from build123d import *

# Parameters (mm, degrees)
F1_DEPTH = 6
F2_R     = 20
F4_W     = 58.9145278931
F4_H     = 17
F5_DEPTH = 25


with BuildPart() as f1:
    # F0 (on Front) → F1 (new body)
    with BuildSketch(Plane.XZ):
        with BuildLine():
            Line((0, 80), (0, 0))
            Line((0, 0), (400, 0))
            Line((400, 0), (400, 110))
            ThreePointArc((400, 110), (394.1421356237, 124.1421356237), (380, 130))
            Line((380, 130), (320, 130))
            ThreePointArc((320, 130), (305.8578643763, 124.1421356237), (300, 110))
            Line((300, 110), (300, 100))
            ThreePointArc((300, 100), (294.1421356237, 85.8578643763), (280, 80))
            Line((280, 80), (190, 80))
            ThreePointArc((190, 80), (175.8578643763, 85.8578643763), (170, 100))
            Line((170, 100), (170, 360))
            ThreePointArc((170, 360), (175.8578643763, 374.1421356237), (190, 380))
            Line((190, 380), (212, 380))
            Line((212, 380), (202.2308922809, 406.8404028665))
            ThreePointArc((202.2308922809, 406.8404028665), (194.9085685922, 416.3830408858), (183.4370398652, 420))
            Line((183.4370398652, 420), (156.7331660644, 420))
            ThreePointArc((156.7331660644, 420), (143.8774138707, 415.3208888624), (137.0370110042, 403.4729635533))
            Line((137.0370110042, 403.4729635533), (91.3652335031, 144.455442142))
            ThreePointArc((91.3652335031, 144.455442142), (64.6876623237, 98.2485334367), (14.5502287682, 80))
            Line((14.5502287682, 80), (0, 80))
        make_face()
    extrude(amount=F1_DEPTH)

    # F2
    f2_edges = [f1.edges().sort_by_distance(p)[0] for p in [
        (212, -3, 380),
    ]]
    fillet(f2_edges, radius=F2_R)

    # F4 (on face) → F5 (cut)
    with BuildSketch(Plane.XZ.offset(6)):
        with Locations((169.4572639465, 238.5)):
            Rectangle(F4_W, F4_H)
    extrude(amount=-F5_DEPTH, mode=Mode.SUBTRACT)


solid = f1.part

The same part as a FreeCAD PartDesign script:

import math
import FreeCAD as App
import Part
import Sketcher
from FreeCAD import Vector
Q = App.Units.Quantity


def edges_at(feature, points):
    """Names of the edges that pass closest to the given points."""
    edges = feature.Shape.Edges
    near = lambda p: min(range(len(edges)), key=lambda i: edges[i].distToShape(Part.Vertex(*p))[0])
    return sorted({f"Edge{near(p) + 1}" for p in points})

doc = App.newDocument("Part")
body = doc.addObject("PartDesign::Body", "Body")

# Sketch on XZ plane
sketch1 = body.newObject("Sketcher::SketchObject", "Sketch")
sketch1.AttachmentSupport = (doc.getObject("XZ_Plane"), [""])
sketch1.MapMode = "FlatFace"
sketch1.addGeometry(Part.LineSegment(Vector(0, 80, 0), Vector(0, 0, 0)), False)
sketch1.addGeometry(Part.LineSegment(Vector(0, 0, 0), Vector(400, 0, 0)), False)
sketch1.addGeometry(Part.LineSegment(Vector(400, 0, 0), Vector(400, 110, 0)), False)
sketch1.addGeometry(Part.ArcOfCircle(Part.Circle(Vector(380, 110, 0), Vector(0, 0, 1), 20), math.radians(0), math.radians(90)), False)
sketch1.addGeometry(Part.LineSegment(Vector(380, 130, 0), Vector(320, 130, 0)), False)
sketch1.addGeometry(Part.ArcOfCircle(Part.Circle(Vector(320, 110, 0), Vector(0, 0, 1), 20), math.radians(90), math.radians(180)), False)
sketch1.addGeometry(Part.LineSegment(Vector(300, 110, 0), Vector(300, 100, 0)), False)
sketch1.addGeometry(Part.ArcOfCircle(Part.Circle(Vector(280, 100, 0), Vector(0, 0, 1), 20), math.radians(-90), math.radians(0)), False)
sketch1.addGeometry(Part.LineSegment(Vector(280, 80, 0), Vector(190, 80, 0)), False)
sketch1.addGeometry(Part.ArcOfCircle(Part.Circle(Vector(190, 100, 0), Vector(0, 0, 1), 20), math.radians(180), math.radians(270)), False)
sketch1.addGeometry(Part.LineSegment(Vector(170, 100, 0), Vector(170, 360, 0)), False)
sketch1.addGeometry(Part.ArcOfCircle(Part.Circle(Vector(190, 360, 0), Vector(0, 0, 1), 20), math.radians(90), math.radians(180)), False)
sketch1.addGeometry(Part.LineSegment(Vector(190, 380, 0), Vector(212, 380, 0)), False)
sketch1.addGeometry(Part.LineSegment(Vector(212, 380, 0), Vector(202, 407, 0)), False)
sketch1.addGeometry(Part.ArcOfCircle(Part.Circle(Vector(183, 400, 0), Vector(0, 0, 1), 20), math.radians(20), math.radians(90)), False)
sketch1.addGeometry(Part.LineSegment(Vector(183, 420, 0), Vector(157, 420, 0)), False)
sketch1.addGeometry(Part.ArcOfCircle(Part.Circle(Vector(157, 400, 0), Vector(0, 0, 1), 20), math.radians(90), math.radians(170)), False)
sketch1.addGeometry(Part.LineSegment(Vector(137, 403, 0), Vector(91, 144, 0)), False)
sketch1.addGeometry(Part.ArcOfCircle(Part.Circle(Vector(15, 158, 0), Vector(0, 0, 1), 78), math.radians(-90), math.radians(-10)), False)
sketch1.addGeometry(Part.LineSegment(Vector(15, 80, 0), Vector(0, 80, 0)), False)
sketch1.addConstraint(Sketcher.Constraint("Coincident", 0, 2, 1, 1))
sketch1.addConstraint(Sketcher.Constraint("Coincident", 1, 2, 2, 1))
sketch1.addConstraint(Sketcher.Constraint("Tangent", 2, 2, 3, 1))
sketch1.addConstraint(Sketcher.Constraint("Tangent", 3, 2, 4, 1))
sketch1.addConstraint(Sketcher.Constraint("Tangent", 4, 2, 5, 1))
sketch1.addConstraint(Sketcher.Constraint("Tangent", 5, 2, 6, 1))
sketch1.addConstraint(Sketcher.Constraint("Tangent", 6, 2, 7, 2))
sketch1.addConstraint(Sketcher.Constraint("Tangent", 7, 1, 8, 1))
sketch1.addConstraint(Sketcher.Constraint("Tangent", 8, 2, 9, 2))
sketch1.addConstraint(Sketcher.Constraint("Tangent", 9, 1, 10, 1))
sketch1.addConstraint(Sketcher.Constraint("Tangent", 10, 2, 11, 2))
sketch1.addConstraint(Sketcher.Constraint("Tangent", 11, 1, 12, 1))
sketch1.addConstraint(Sketcher.Constraint("Coincident", 12, 2, 13, 1))
sketch1.addConstraint(Sketcher.Constraint("Tangent", 13, 2, 14, 1))
sketch1.addConstraint(Sketcher.Constraint("Tangent", 14, 2, 15, 1))
sketch1.addConstraint(Sketcher.Constraint("Tangent", 15, 2, 16, 1))
sketch1.addConstraint(Sketcher.Constraint("Tangent", 16, 2, 17, 1))
sketch1.addConstraint(Sketcher.Constraint("Tangent", 17, 2, 18, 2))
sketch1.addConstraint(Sketcher.Constraint("Tangent", 18, 1, 19, 1))
sketch1.addConstraint(Sketcher.Constraint("Coincident", 19, 2, 0, 1))
sketch1.addConstraint(Sketcher.Constraint("Vertical", 0))
sketch1.addConstraint(Sketcher.Constraint("Horizontal", 1))
sketch1.addConstraint(Sketcher.Constraint("Vertical", 2))
sketch1.addConstraint(Sketcher.Constraint("Horizontal", 4))
sketch1.addConstraint(Sketcher.Constraint("Vertical", 6))
sketch1.addConstraint(Sketcher.Constraint("Horizontal", 8))
sketch1.addConstraint(Sketcher.Constraint("Vertical", 10))
sketch1.addConstraint(Sketcher.Constraint("Horizontal", 12))
sketch1.addConstraint(Sketcher.Constraint("Horizontal", 15))
sketch1.addConstraint(Sketcher.Constraint("Horizontal", 19))
sketch1.addConstraint(Sketcher.Constraint("Coincident", 0, 2, -1, 1))
sketch1.addConstraint(Sketcher.Constraint("Equal", 3, 5))
sketch1.addConstraint(Sketcher.Constraint("Equal", 5, 7))
sketch1.addConstraint(Sketcher.Constraint("Equal", 7, 9))
sketch1.addConstraint(Sketcher.Constraint("Equal", 9, 11))
sketch1.addConstraint(Sketcher.Constraint("Equal", 11, 14))
sketch1.addConstraint(Sketcher.Constraint("Equal", 14, 16))
sketch1.addConstraint(Sketcher.Constraint("Horizontal", 8, 2, 18, 1))
sketch1.addConstraint(Sketcher.Constraint("Radius", 3, Q("20 mm")))
sketch1.addConstraint(Sketcher.Constraint("Radius", 18, Q("78 mm")))
sketch1.addConstraint(Sketcher.Constraint("DistanceX", 1, 1, 1, 2, Q("400 mm")))
sketch1.addConstraint(Sketcher.Constraint("DistanceX", 4, 2, 4, 1, Q("60 mm")))
sketch1.addConstraint(Sketcher.Constraint("DistanceX", 8, 2, 8, 1, Q("90 mm")))
sketch1.addConstraint(Sketcher.Constraint("DistanceX", 12, 1, 12, 2, Q("22 mm")))
sketch1.addConstraint(Sketcher.Constraint("DistanceY", 0, 2, 0, 1, Q("80 mm")))
sketch1.addConstraint(Sketcher.Constraint("DistanceY", 2, 1, 2, 2, Q("110 mm")))
sketch1.addConstraint(Sketcher.Constraint("DistanceY", 10, 1, 10, 2, Q("260 mm")))
sketch1.addConstraint(Sketcher.Constraint("Angle", 13, Q("110 deg")))
sketch1.addConstraint(Sketcher.Constraint("Angle", 17, Q("-100 deg")))
sketch1.addConstraint(Sketcher.Constraint("DistanceY", -1, 1, 14, 3, Q("400 mm")))
sketch1.addConstraint(Sketcher.Constraint("DistanceX", 19, 2, 19, 1, Q("14.550229 mm")))
pad1 = body.newObject("PartDesign::Pad", "Pad")
pad1.Profile = sketch1
pad1.Length = 6
doc.recompute()

fillet = body.newObject("PartDesign::Fillet", "Fillet")
fillet.Base = (pad1, edges_at(pad1, [(212, -3, 380)]))
fillet.Radius = 20

# Sketch on XZ plane
sketch2 = body.newObject("Sketcher::SketchObject", "Sketch001")
sketch2.AttachmentSupport = (doc.getObject("XZ_Plane"), [""])
sketch2.MapMode = "FlatFace"
sketch2.AttachmentOffset = App.Placement(Vector(0, 0, 6), App.Rotation())
sketch2.addGeometry(Part.LineSegment(Vector(140, 247, 0), Vector(140, 230, 0)), False)
sketch2.addGeometry(Part.LineSegment(Vector(140, 230, 0), Vector(199, 230, 0)), False)
sketch2.addGeometry(Part.LineSegment(Vector(199, 230, 0), Vector(199, 247, 0)), False)
sketch2.addGeometry(Part.LineSegment(Vector(199, 247, 0), Vector(140, 247, 0)), False)
sketch2.addConstraint(Sketcher.Constraint("Coincident", 0, 2, 1, 1))
sketch2.addConstraint(Sketcher.Constraint("Coincident", 1, 2, 2, 1))
sketch2.addConstraint(Sketcher.Constraint("Coincident", 2, 2, 3, 1))
sketch2.addConstraint(Sketcher.Constraint("Coincident", 3, 2, 0, 1))
sketch2.addConstraint(Sketcher.Constraint("Vertical", 0))
sketch2.addConstraint(Sketcher.Constraint("Horizontal", 1))
sketch2.addConstraint(Sketcher.Constraint("Vertical", 2))
sketch2.addConstraint(Sketcher.Constraint("Horizontal", 3))
sketch2.addConstraint(Sketcher.Constraint("DistanceY", 0, 2, 0, 1, Q("17 mm")))
sketch2.addConstraint(Sketcher.Constraint("DistanceX", -1, 1, 0, 2, Q("140 mm")))
sketch2.addConstraint(Sketcher.Constraint("DistanceY", -1, 1, 0, 2, Q("230 mm")))
sketch2.addConstraint(Sketcher.Constraint("DistanceX", 1, 1, 1, 2, Q("58.914528 mm")))
pocket1 = body.newObject("PartDesign::Pocket", "Pocket")
pocket1.Profile = sketch2
pocket1.Length = 25

doc.recompute()
